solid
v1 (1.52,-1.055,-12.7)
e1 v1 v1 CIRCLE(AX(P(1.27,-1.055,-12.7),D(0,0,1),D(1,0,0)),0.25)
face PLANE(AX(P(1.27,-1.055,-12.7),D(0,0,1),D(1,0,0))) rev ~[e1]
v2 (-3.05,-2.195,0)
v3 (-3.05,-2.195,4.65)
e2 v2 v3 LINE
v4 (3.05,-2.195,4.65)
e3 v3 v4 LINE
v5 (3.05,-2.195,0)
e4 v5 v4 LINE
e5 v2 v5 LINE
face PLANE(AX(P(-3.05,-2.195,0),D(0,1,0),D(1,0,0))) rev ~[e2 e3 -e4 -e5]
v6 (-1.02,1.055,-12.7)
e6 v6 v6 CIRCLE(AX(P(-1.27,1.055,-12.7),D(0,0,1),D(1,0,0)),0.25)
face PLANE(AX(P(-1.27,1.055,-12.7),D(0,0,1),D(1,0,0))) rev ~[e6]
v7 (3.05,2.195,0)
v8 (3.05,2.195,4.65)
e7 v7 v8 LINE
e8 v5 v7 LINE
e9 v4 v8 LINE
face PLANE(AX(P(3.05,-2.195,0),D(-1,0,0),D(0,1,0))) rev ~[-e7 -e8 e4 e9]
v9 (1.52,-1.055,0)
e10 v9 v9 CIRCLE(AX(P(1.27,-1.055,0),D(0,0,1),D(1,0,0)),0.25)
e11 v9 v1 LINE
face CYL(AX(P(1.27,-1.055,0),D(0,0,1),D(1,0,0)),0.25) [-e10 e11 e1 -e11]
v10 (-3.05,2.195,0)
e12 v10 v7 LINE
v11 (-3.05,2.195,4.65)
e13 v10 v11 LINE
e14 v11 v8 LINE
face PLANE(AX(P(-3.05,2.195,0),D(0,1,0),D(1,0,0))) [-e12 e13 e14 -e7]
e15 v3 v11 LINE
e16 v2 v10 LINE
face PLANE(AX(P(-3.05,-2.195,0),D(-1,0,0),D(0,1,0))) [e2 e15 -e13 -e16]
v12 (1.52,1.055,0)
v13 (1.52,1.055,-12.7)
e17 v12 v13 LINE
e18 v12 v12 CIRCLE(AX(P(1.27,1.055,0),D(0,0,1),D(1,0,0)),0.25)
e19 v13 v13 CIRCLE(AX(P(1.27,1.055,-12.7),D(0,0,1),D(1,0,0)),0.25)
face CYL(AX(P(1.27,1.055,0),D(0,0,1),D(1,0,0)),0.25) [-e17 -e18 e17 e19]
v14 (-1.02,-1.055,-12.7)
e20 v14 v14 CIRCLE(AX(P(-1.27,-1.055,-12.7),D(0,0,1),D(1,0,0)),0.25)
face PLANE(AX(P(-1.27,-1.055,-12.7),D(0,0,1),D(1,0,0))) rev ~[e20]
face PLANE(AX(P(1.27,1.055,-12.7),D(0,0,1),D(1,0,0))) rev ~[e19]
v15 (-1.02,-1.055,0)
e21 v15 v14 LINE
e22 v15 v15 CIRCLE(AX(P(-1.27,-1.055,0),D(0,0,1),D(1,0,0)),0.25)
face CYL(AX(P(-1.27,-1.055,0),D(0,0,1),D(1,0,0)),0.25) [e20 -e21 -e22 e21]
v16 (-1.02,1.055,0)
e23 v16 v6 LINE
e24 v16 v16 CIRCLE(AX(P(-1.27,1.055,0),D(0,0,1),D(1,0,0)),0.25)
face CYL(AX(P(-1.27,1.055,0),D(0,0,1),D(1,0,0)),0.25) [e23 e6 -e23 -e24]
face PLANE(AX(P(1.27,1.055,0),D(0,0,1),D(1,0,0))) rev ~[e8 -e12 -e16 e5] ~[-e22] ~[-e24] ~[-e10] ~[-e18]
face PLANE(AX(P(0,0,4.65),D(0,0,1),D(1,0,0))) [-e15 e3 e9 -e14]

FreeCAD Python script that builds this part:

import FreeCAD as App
import Part
import Sketcher
Q = App.Units.Quantity

doc = App.newDocument("Part")
body = doc.addObject("PartDesign::Body", "Body")

# Sketch on XY plane
sketch1 = doc.addObject("Sketcher::SketchObject", "Sketch")
body.addObject(sketch1)
sketch1.AttachmentSupport = (doc.XY_Plane, [""])
sketch1.MapMode = "FlatFace"
sketch1.addGeometry(Part.LineSegment(App.Vector(-3.05, 2.19, 0), App.Vector(-3.05, -2.19, 0)), False)
sketch1.addGeometry(Part.LineSegment(App.Vector(-3.05, -2.19, 0), App.Vector(3.05, -2.19, 0)), False)
sketch1.addGeometry(Part.LineSegment(App.Vector(3.05, -2.19, 0), App.Vector(3.05, 2.19, 0)), False)
sketch1.addGeometry(Part.LineSegment(App.Vector(3.05, 2.19, 0), App.Vector(-3.05, 2.19, 0)), False)
sketch1.addGeometry(Part.Circle(App.Vector(-1.27, -1.05, 0), App.Vector(0, 0, 1), 0.25), False)
sketch1.addGeometry(Part.Circle(App.Vector(1.27, -1.05, 0), App.Vector(0, 0, 1), 0.25), False)
sketch1.addGeometry(Part.Circle(App.Vector(-1.27, 1.05, 0), App.Vector(0, 0, 1), 0.25), False)
sketch1.addGeometry(Part.Circle(App.Vector(1.27, 1.05, 0), App.Vector(0, 0, 1), 0.25), False)
sketch1.addConstraint(Sketcher.Constraint("Coincident", 0, 2, 1, 1))
sketch1.addConstraint(Sketcher.Constraint("Coincident", 1, 2, 2, 1))
sketch1.addConstraint(Sketcher.Constraint("Coincident", 2, 2, 3, 1))
sketch1.addConstraint(Sketcher.Constraint("Coincident", 3, 2, 0, 1))
sketch1.addConstraint(Sketcher.Constraint("Vertical", 0))
sketch1.addConstraint(Sketcher.Constraint("Horizontal", 1))
sketch1.addConstraint(Sketcher.Constraint("Vertical", 2))
sketch1.addConstraint(Sketcher.Constraint("Horizontal", 3))
sketch1.addConstraint(Sketcher.Constraint("Equal", 4, 5))
sketch1.addConstraint(Sketcher.Constraint("Equal", 5, 6))
sketch1.addConstraint(Sketcher.Constraint("Equal", 6, 7))
sketch1.addConstraint(Sketcher.Constraint("Symmetric", 5, 3, 6, 3, -1, 1))
sketch1.addConstraint(Sketcher.Constraint("Symmetric", 4, 3, 7, 3, -1, 1))
sketch1.addConstraint(Sketcher.Constraint("Symmetric", 0, 2, 2, 2, -1, 1))
sketch1.addConstraint(Sketcher.Constraint("Symmetric", 4, 3, 5, 3, -2))
sketch1.addConstraint(Sketcher.Constraint("Diameter", 4, Q("0.5 mm")))
sketch1.addConstraint(Sketcher.Constraint("DistanceX", 1, 1, 1, 2, Q("6.1 mm")))
sketch1.addConstraint(Sketcher.Constraint("DistanceY", 0, 2, 0, 1, Q("4.39 mm")))
sketch1.addConstraint(Sketcher.Constraint("DistanceX", 4, 3, -1, 1, Q("1.27 mm")))
sketch1.addConstraint(Sketcher.Constraint("DistanceY", 4, 3, 6, 3, Q("2.11 mm")))
pad1 = doc.addObject("PartDesign::Pad", "Pad")
body.addObject(pad1)
pad1.Profile = sketch1
pad1.Length = 4.65

# Sketch on XY plane
sketch2 = doc.addObject("Sketcher::SketchObject", "Sketch001")
body.addObject(sketch2)
sketch2.AttachmentSupport = (doc.XY_Plane, [""])
sketch2.MapMode = "FlatFace"
sketch2.addGeometry(Part.Circle(App.Vector(1.27, 1.05, 0), App.Vector(0, 0, 1), 0.25), False)
sketch2.addGeometry(Part.Circle(App.Vector(-1.27, 1.05, 0), App.Vector(0, 0, 1), 0.25), False)
sketch2.addGeometry(Part.Circle(App.Vector(1.27, -1.05, 0), App.Vector(0, 0, 1), 0.25), False)
sketch2.addGeometry(Part.Circle(App.Vector(-1.27, -1.05, 0), App.Vector(0, 0, 1), 0.25), False)
sketch2.addConstraint(Sketcher.Constraint("Equal", 0, 1))
sketch2.addConstraint(Sketcher.Constraint("Equal", 1, 2))
sketch2.addConstraint(Sketcher.Constraint("Equal", 2, 3))
sketch2.addConstraint(Sketcher.Constraint("Symmetric", 1, 3, 2, 3, -1, 1))
sketch2.addConstraint(Sketcher.Constraint("Symmetric", 0, 3, 3, 3, -1, 1))
sketch2.addConstraint(Sketcher.Constraint("Symmetric", 0, 3, 1, 3, -2))
sketch2.addConstraint(Sketcher.Constraint("Diameter", 0, Q("0.5 mm")))
sketch2.addConstraint(Sketcher.Constraint("DistanceX", -1, 1, 0, 3, Q("1.27 mm")))
sketch2.addConstraint(Sketcher.Constraint("DistanceY", 2, 3, 0, 3, Q("2.11 mm")))
pad2 = doc.addObject("PartDesign::Pad", "Pad001")
body.addObject(pad2)
pad2.Profile = sketch2
pad2.Type = "TwoLengths"
pad2.Length = 4.65
pad2.Length2 = 12.7

doc.recompute()
